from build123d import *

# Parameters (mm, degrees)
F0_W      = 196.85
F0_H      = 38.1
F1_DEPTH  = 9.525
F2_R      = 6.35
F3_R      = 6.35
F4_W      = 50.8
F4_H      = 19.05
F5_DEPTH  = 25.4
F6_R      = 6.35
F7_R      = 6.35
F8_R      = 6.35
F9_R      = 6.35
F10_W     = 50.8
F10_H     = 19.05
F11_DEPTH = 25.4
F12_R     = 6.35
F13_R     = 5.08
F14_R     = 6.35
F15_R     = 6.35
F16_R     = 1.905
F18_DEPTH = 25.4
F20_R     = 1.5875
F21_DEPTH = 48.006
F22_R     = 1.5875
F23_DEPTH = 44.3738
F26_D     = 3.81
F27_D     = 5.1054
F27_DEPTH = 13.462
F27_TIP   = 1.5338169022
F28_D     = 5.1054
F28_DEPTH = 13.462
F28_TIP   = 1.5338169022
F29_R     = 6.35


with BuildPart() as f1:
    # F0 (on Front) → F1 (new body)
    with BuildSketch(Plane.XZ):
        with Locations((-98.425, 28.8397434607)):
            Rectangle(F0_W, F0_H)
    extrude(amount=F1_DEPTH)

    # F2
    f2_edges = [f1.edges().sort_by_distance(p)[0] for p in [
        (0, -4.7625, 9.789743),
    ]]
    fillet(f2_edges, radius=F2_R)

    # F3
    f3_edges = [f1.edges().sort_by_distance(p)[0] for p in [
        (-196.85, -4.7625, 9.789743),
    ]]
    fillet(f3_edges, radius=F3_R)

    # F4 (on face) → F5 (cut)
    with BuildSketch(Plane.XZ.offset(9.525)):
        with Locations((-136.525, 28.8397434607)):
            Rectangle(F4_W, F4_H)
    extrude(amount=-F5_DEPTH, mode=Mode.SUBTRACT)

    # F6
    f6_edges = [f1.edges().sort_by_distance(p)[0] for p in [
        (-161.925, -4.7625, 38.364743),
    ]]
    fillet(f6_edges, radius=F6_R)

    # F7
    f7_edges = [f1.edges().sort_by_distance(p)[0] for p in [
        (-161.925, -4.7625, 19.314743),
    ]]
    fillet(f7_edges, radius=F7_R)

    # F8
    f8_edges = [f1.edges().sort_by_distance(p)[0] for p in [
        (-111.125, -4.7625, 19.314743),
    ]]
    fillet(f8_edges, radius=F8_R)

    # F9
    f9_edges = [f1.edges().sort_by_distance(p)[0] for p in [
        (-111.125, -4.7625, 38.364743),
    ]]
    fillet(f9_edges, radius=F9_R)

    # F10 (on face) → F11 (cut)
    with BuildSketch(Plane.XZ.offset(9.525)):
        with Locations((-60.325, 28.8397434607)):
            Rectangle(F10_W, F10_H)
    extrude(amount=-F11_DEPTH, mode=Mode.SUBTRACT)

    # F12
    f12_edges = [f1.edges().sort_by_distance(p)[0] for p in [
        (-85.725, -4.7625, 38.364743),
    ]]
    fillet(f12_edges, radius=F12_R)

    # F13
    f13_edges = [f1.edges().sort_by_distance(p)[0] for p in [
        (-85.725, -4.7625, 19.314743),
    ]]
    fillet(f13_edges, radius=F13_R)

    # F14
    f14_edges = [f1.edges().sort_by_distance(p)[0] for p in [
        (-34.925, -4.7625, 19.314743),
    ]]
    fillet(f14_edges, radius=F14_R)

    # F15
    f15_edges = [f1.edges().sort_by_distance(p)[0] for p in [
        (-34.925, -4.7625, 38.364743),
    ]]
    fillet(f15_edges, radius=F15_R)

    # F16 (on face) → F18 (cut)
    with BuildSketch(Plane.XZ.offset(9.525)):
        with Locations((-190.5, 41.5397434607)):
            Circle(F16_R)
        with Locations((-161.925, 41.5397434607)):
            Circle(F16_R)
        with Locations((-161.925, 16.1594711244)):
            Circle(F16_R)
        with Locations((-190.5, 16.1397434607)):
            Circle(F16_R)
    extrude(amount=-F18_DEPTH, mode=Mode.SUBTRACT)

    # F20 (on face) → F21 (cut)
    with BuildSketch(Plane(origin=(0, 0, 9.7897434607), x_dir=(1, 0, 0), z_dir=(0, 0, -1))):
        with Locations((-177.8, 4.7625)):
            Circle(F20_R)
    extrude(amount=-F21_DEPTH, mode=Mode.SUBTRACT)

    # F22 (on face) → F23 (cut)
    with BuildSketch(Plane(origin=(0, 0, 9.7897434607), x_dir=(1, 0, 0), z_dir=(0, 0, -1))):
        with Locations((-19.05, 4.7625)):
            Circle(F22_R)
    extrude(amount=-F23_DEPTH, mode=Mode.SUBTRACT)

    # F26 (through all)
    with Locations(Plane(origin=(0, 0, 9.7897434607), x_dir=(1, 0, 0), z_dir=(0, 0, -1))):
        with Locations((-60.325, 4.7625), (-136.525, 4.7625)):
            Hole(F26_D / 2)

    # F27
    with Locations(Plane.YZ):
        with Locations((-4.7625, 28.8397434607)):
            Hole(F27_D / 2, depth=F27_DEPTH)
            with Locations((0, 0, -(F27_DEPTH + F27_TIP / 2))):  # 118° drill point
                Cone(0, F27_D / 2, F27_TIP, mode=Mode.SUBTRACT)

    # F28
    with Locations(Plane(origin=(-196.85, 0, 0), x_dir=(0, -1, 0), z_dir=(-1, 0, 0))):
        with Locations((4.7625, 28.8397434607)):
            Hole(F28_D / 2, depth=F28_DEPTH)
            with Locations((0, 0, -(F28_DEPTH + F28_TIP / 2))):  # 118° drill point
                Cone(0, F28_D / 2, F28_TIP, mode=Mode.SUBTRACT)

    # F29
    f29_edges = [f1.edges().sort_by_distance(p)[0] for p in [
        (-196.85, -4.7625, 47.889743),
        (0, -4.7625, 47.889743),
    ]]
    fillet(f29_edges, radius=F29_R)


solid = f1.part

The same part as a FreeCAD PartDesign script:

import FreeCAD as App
import Part
import Sketcher
Q = App.Units.Quantity


def edges_at(feature, points):
    """Names of the edges that pass closest to the given points."""
    edges = feature.Shape.Edges
    near = lambda p: min(range(len(edges)), key=lambda i: edges[i].distToShape(Part.Vertex(*p))[0])
    return sorted({f"Edge{near(p) + 1}" for p in points})

doc = App.newDocument("Part")
body = doc.addObject("PartDesign::Body", "Body")

sketch1 = doc.addObject("Sketcher::SketchObject", "Sketch")
body.addObject(sketch1)
sketch1.AttachmentSupport = (doc.XZ_Plane, [""])
sketch1.MapMode = "FlatFace"
sketch1.addGeometry([
    Part.LineSegment(App.Vector(-196.85, 47.889743, 0), App.Vector(-196.85, 9.789743, 0)),
    Part.LineSegment(App.Vector(-196.85, 9.789743, 0), App.Vector(0, 9.789743, 0)),
    Part.LineSegment(App.Vector(0, 9.789743, 0), App.Vector(0, 47.889743, 0)),
    Part.LineSegment(App.Vector(0, 47.889743, 0), App.Vector(-196.85, 47.889743, 0)),
], False)
sketch1.addConstraint([
    Sketcher.Constraint("Coincident", 0, 2, 1, 1),
    Sketcher.Constraint("Coincident", 1, 2, 2, 1),
    Sketcher.Constraint("Coincident", 2, 2, 3, 1),
    Sketcher.Constraint("Coincident", 3, 2, 0, 1),
    Sketcher.Constraint("Vertical", 0),
    Sketcher.Constraint("Horizontal", 1),
    Sketcher.Constraint("Vertical", 2),
    Sketcher.Constraint("Horizontal", 3),
    Sketcher.Constraint("PointOnObject", 1, 2, -2),
    Sketcher.Constraint("DistanceY", 0, 2, 0, 1, Q("1.5 in")),
    Sketcher.Constraint("DistanceX", 1, 1, 1, 2, Q("7.75 in")),
    Sketcher.Constraint("DistanceY", -1, 1, 0, 2, 9.789743),
])
pad1 = doc.addObject("PartDesign::Pad", "Pad")
body.addObject(pad1)
pad1.Profile = sketch1
pad1.Length = Q("0.375 in")
doc.recompute()

fillet = doc.addObject("PartDesign::Fillet", "Fillet")
body.addObject(fillet)
fillet.Base = (pad1, edges_at(pad1, [(0, -4.763, 9.79)]))
fillet.Radius = Q("0.25 in")
doc.recompute()

fillet2 = doc.addObject("PartDesign::Fillet", "Fillet001")
body.addObject(fillet2)
fillet2.Base = (fillet, edges_at(fillet, [(-196.85, -4.763, 9.79)]))
fillet2.Radius = Q("0.25 in")

sketch2 = doc.addObject("Sketcher::SketchObject", "Sketch001")
body.addObject(sketch2)
sketch2.AttachmentSupport = (doc.XZ_Plane, [""])
sketch2.MapMode = "FlatFace"
sketch2.AttachmentOffset = App.Placement(App.Vector(0, 0, 0.375 * 25.4), App.Rotation())
sketch2.addGeometry([
    Part.LineSegment(App.Vector(-161.925, 38.364743, 0), App.Vector(-161.925, 19.314743, 0)),
    Part.LineSegment(App.Vector(-161.925, 19.314743, 0), App.Vector(-111.125, 19.314743, 0)),
    Part.LineSegment(App.Vector(-111.125, 19.314743, 0), App.Vector(-111.125, 38.364743, 0)),
    Part.LineSegment(App.Vector(-111.125, 38.364743, 0), App.Vector(-161.925, 38.364743, 0)),
], False)
sketch2.addConstraint([
    Sketcher.Constraint("Coincident", 0, 2, 1, 1),
    Sketcher.Constraint("Coincident", 1, 2, 2, 1),
    Sketcher.Constraint("Coincident", 2, 2, 3, 1),
    Sketcher.Constraint("Coincident", 3, 2, 0, 1),
    Sketcher.Constraint("Vertical", 0),
    Sketcher.Constraint("Horizontal", 1),
    Sketcher.Constraint("Vertical", 2),
    Sketcher.Constraint("Horizontal", 3),
    Sketcher.Constraint("DistanceX", 1, 1, 1, 2, Q("2 in")),
    Sketcher.Constraint("DistanceY", 0, 2, 0, 1, Q("0.75 in")),
    Sketcher.Constraint("DistanceX", 0, 2, -1, 1, Q("6.375 in")),
    Sketcher.Constraint("DistanceY", -1, 1, 0, 2, 19.314743),
])
pocket1 = doc.addObject("PartDesign::Pocket", "Pocket")
body.addObject(pocket1)
pocket1.Profile = sketch2
pocket1.Length = Q("1 in")
doc.recompute()

fillet3 = doc.addObject("PartDesign::Fillet", "Fillet002")
body.addObject(fillet3)
fillet3.Base = (pocket1, edges_at(pocket1, [(-161.925, -4.763, 38.365)]))
fillet3.Radius = Q("0.25 in")
doc.recompute()

fillet4 = doc.addObject("PartDesign::Fillet", "Fillet003")
body.addObject(fillet4)
fillet4.Base = (fillet3, edges_at(fillet3, [(-161.925, -4.763, 19.315)]))
fillet4.Radius = Q("0.25 in")
doc.recompute()

fillet5 = doc.addObject("PartDesign::Fillet", "Fillet004")
body.addObject(fillet5)
fillet5.Base = (fillet4, edges_at(fillet4, [(-111.125, -4.763, 19.315)]))
fillet5.Radius = Q("0.25 in")
doc.recompute()

fillet6 = doc.addObject("PartDesign::Fillet", "Fillet005")
body.addObject(fillet6)
fillet6.Base = (fillet5, edges_at(fillet5, [(-111.125, -4.763, 38.365)]))
fillet6.Radius = Q("0.25 in")

sketch3 = doc.addObject("Sketcher::SketchObject", "Sketch002")
body.addObject(sketch3)
sketch3.AttachmentSupport = (doc.XZ_Plane, [""])
sketch3.MapMode = "FlatFace"
sketch3.AttachmentOffset = App.Placement(App.Vector(0, 0, 0.375 * 25.4), App.Rotation())
sketch3.addGeometry([
    Part.LineSegment(App.Vector(-85.725, 38.364743, 0), App.Vector(-85.725, 19.314743, 0)),
    Part.LineSegment(App.Vector(-85.725, 19.314743, 0), App.Vector(-34.925, 19.314743, 0)),
    Part.LineSegment(App.Vector(-34.925, 19.314743, 0), App.Vector(-34.925, 38.364743, 0)),
    Part.LineSegment(App.Vector(-34.925, 38.364743, 0), App.Vector(-85.725, 38.364743, 0)),
], False)
sketch3.addConstraint([
    Sketcher.Constraint("Coincident", 0, 2, 1, 1),
    Sketcher.Constraint("Coincident", 1, 2, 2, 1),
    Sketcher.Constraint("Coincident", 2, 2, 3, 1),
    Sketcher.Constraint("Coincident", 3, 2, 0, 1),
    Sketcher.Constraint("Vertical", 0),
    Sketcher.Constraint("Horizontal", 1),
    Sketcher.Constraint("Vertical", 2),
    Sketcher.Constraint("Horizontal", 3),
    Sketcher.Constraint("DistanceX", 1, 1, 1, 2, Q("2 in")),
    Sketcher.Constraint("DistanceY", 0, 2, 0, 1, Q("0.75 in")),
    Sketcher.Constraint("DistanceX", 0, 2, -1, 1, Q("3.375 in")),
    Sketcher.Constraint("DistanceY", -1, 1, 0, 2, 19.314743),
])
pocket2 = doc.addObject("PartDesign::Pocket", "Pocket001")
body.addObject(pocket2)
pocket2.Profile = sketch3
pocket2.Length = Q("1 in")
doc.recompute()

fillet7 = doc.addObject("PartDesign::Fillet", "Fillet006")
body.addObject(fillet7)
fillet7.Base = (pocket2, edges_at(pocket2, [(-85.725, -4.763, 38.365)]))
fillet7.Radius = Q("0.25 in")
doc.recompute()

fillet8 = doc.addObject("PartDesign::Fillet", "Fillet007")
body.addObject(fillet8)
fillet8.Base = (fillet7, edges_at(fillet7, [(-85.725, -4.763, 19.315)]))
fillet8.Radius = Q("0.2 in")
doc.recompute()

fillet9 = doc.addObject("PartDesign::Fillet", "Fillet008")
body.addObject(fillet9)
fillet9.Base = (fillet8, edges_at(fillet8, [(-34.925, -4.763, 19.315)]))
fillet9.Radius = Q("0.25 in")
doc.recompute()

fillet10 = doc.addObject("PartDesign::Fillet", "Fillet009")
body.addObject(fillet10)
fillet10.Base = (fillet9, edges_at(fillet9, [(-34.925, -4.763, 38.365)]))
fillet10.Radius = Q("0.25 in")

sketch4 = doc.addObject("Sketcher::SketchObject", "Sketch003")
body.addObject(sketch4)
sketch4.AttachmentSupport = (doc.XZ_Plane, [""])
sketch4.MapMode = "FlatFace"
sketch4.AttachmentOffset = App.Placement(App.Vector(0, 0, 0.375 * 25.4), App.Rotation())
sketch4.addGeometry([
    Part.Circle(App.Vector(-190.5, 41.539743, 0), App.Vector(0, 0, 1), 1.905),
    Part.Circle(App.Vector(-161.925, 41.539743, 0), App.Vector(0, 0, 1), 1.905),
    Part.Circle(App.Vector(-161.925, 16.159471, 0), App.Vector(0, 0, 1), 1.905),
    Part.Circle(App.Vector(-190.5, 16.139743, 0), App.Vector(0, 0, 1), 1.905),
], False)
sketch4.addConstraint([
    Sketcher.Constraint("Equal", 0, 1),
    Sketcher.Constraint("Equal", 1, 2),
    Sketcher.Constraint("Equal", 2, 3),
    Sketcher.Constraint("Horizontal", 0, 3, 1, 3),
    Sketcher.Constraint("Vertical", 1, 3, 2, 3),
    Sketcher.Constraint("Vertical", 0, 3, 3, 3),
    Sketcher.Constraint("Diameter", 0, Q("0.15 in")),
    Sketcher.Constraint("DistanceY", 3, 3, 0, 3, Q("1 in")),
    Sketcher.Constraint("DistanceX", 0, 3, -1, 1, Q("7.5 in")),
    Sketcher.Constraint("DistanceX", 1, 3, -1, 1, Q("6.375 in")),
    Sketcher.Constraint("DistanceY", -1, 1, 2, 3, 16.159471),
    Sketcher.Constraint("DistanceY", -1, 1, 0, 3, 41.539743),
])
pocket3 = doc.addObject("PartDesign::Pocket", "Pocket002")
body.addObject(pocket3)
pocket3.Profile = sketch4
pocket3.Length = Q("1 in")

sketch5 = doc.addObject("Sketcher::SketchObject", "Sketch004")
body.addObject(sketch5)
sketch5.AttachmentSupport = (doc.XY_Plane, [""])
sketch5.MapMode = "FlatFace"
sketch5.AttachmentOffset = App.Placement(App.Vector(0, 0, 9.789743), App.Rotation())
sketch5.addGeometry(Part.Circle(App.Vector(-177.8, -4.7625, 0), App.Vector(0, 0, 1), 1.5875), False)
sketch5.addConstraint([
    Sketcher.Constraint("Diameter", 0, Q("0.125 in")),
    Sketcher.Constraint("DistanceX", 0, 3, -1, 1, Q("7 in")),
    Sketcher.Constraint("DistanceY", 0, 3, -1, 1, Q("0.1875 in")),
])
pocket4 = doc.addObject("PartDesign::Pocket", "Pocket003")
body.addObject(pocket4)
pocket4.Profile = sketch5
pocket4.Length = Q("1.89 in")
pocket4.Reversed = True

sketch6 = doc.addObject("Sketcher::SketchObject", "Sketch005")
body.addObject(sketch6)
sketch6.AttachmentSupport = (doc.XY_Plane, [""])
sketch6.MapMode = "FlatFace"
sketch6.AttachmentOffset = App.Placement(App.Vector(0, 0, 9.789743), App.Rotation())
sketch6.addGeometry(Part.Circle(App.Vector(-19.05, -4.7625, 0), App.Vector(0, 0, 1), 1.5875), False)
sketch6.addConstraint([
    Sketcher.Constraint("Diameter", 0, Q("0.125 in")),
    Sketcher.Constraint("DistanceX", 0, 3, -1, 1, Q("0.75 in")),
    Sketcher.Constraint("DistanceY", 0, 3, -1, 1, Q("0.1875 in")),
])
pocket5 = doc.addObject("PartDesign::Pocket", "Pocket004")
body.addObject(pocket5)
pocket5.Profile = sketch6
pocket5.Length = Q("1.747 in")
pocket5.Reversed = True

sketch7 = doc.addObject("Sketcher::SketchObject", "Sketch006")
body.addObject(sketch7)
sketch7.AttachmentSupport = (doc.XY_Plane, [""])
sketch7.MapMode = "FlatFace"
sketch7.AttachmentOffset = App.Placement(App.Vector(0, 0, 9.789743), App.Rotation())
sketch7.addGeometry([
    Part.Circle(App.Vector(-60.325, -4.7625, 0), App.Vector(0, 0, 1), 1.905),
    Part.Circle(App.Vector(-136.525, -4.7625, 0), App.Vector(0, 0, 1), 1.905),
], False)
sketch7.addConstraint([
    Sketcher.Constraint("Equal", 0, 1),
    Sketcher.Constraint("Horizontal", 0, 3, 1, 3),
    Sketcher.Constraint("Diameter", 0, Q("0.15 in")),
    Sketcher.Constraint("DistanceX", 1, 3, 0, 3, Q("3 in")),
    Sketcher.Constraint("DistanceX", 0, 3, -1, 1, Q("2.375 in")),
    Sketcher.Constraint("DistanceY", 0, 3, -1, 1, Q("0.1875 in")),
])
doc.recompute()
hole = doc.addObject("PartDesign::Hole", "Hole")
body.addObject(hole)
hole.Profile = sketch7
hole.ThreadType = "None"
hole.Diameter = Q("0.15 in")
hole.DepthType = "ThroughAll"
hole.Reversed = True

sketch8 = doc.addObject("Sketcher::SketchObject", "Sketch007")
body.addObject(sketch8)
sketch8.AttachmentSupport = (doc.YZ_Plane, [""])
sketch8.MapMode = "FlatFace"
sketch8.addGeometry(Part.Circle(App.Vector(-4.7625, 28.839743, 0), App.Vector(0, 0, 1), 2.5527), False)
sketch8.addConstraint([
    Sketcher.Constraint("Diameter", 0, Q("0.201 in")),
    Sketcher.Constraint("DistanceX", 0, 3, -1, 1, Q("0.1875 in")),
    Sketcher.Constraint("DistanceY", -1, 1, 0, 3, 28.839743),
])
doc.recompute()
hole2 = doc.addObject("PartDesign::Hole", "Hole001")
body.addObject(hole2)
hole2.Profile = sketch8
hole2.ThreadType = "None"
hole2.Diameter = Q("0.201 in")
hole2.DepthType = "Dimension"
hole2.Depth = Q("0.53 in")
hole2.DrillPoint = "Angled"
hole2.DrillPointAngle = 118

sketch9 = doc.addObject("Sketcher::SketchObject", "Sketch008")
body.addObject(sketch9)
sketch9.AttachmentSupport = (doc.YZ_Plane, [""])
sketch9.MapMode = "FlatFace"
sketch9.AttachmentOffset = App.Placement(App.Vector(0, 0, -7.75 * 25.4), App.Rotation())
sketch9.addGeometry(Part.Circle(App.Vector(-4.7625, 28.839743, 0), App.Vector(0, 0, 1), 2.5527), False)
sketch9.addConstraint([
    Sketcher.Constraint("Diameter", 0, Q("0.201 in")),
    Sketcher.Constraint("DistanceX", 0, 3, -1, 1, Q("0.1875 in")),
    Sketcher.Constraint("DistanceY", -1, 1, 0, 3, 28.839743),
])
doc.recompute()
hole3 = doc.addObject("PartDesign::Hole", "Hole002")
body.addObject(hole3)
hole3.Profile = sketch9
hole3.ThreadType = "None"
hole3.Diameter = Q("0.201 in")
hole3.DepthType = "Dimension"
hole3.Depth = Q("0.53 in")
hole3.DrillPoint = "Angled"
hole3.DrillPointAngle = 118
hole3.Reversed = True
doc.recompute()

fillet11 = doc.addObject("PartDesign::Fillet", "Fillet010")
body.addObject(fillet11)
fillet11.Base = (hole3, edges_at(hole3, [(-196.85, -4.763, 47.89), (0, -4.763, 47.89)]))
fillet11.Radius = Q("0.25 in")

doc.recompute()
